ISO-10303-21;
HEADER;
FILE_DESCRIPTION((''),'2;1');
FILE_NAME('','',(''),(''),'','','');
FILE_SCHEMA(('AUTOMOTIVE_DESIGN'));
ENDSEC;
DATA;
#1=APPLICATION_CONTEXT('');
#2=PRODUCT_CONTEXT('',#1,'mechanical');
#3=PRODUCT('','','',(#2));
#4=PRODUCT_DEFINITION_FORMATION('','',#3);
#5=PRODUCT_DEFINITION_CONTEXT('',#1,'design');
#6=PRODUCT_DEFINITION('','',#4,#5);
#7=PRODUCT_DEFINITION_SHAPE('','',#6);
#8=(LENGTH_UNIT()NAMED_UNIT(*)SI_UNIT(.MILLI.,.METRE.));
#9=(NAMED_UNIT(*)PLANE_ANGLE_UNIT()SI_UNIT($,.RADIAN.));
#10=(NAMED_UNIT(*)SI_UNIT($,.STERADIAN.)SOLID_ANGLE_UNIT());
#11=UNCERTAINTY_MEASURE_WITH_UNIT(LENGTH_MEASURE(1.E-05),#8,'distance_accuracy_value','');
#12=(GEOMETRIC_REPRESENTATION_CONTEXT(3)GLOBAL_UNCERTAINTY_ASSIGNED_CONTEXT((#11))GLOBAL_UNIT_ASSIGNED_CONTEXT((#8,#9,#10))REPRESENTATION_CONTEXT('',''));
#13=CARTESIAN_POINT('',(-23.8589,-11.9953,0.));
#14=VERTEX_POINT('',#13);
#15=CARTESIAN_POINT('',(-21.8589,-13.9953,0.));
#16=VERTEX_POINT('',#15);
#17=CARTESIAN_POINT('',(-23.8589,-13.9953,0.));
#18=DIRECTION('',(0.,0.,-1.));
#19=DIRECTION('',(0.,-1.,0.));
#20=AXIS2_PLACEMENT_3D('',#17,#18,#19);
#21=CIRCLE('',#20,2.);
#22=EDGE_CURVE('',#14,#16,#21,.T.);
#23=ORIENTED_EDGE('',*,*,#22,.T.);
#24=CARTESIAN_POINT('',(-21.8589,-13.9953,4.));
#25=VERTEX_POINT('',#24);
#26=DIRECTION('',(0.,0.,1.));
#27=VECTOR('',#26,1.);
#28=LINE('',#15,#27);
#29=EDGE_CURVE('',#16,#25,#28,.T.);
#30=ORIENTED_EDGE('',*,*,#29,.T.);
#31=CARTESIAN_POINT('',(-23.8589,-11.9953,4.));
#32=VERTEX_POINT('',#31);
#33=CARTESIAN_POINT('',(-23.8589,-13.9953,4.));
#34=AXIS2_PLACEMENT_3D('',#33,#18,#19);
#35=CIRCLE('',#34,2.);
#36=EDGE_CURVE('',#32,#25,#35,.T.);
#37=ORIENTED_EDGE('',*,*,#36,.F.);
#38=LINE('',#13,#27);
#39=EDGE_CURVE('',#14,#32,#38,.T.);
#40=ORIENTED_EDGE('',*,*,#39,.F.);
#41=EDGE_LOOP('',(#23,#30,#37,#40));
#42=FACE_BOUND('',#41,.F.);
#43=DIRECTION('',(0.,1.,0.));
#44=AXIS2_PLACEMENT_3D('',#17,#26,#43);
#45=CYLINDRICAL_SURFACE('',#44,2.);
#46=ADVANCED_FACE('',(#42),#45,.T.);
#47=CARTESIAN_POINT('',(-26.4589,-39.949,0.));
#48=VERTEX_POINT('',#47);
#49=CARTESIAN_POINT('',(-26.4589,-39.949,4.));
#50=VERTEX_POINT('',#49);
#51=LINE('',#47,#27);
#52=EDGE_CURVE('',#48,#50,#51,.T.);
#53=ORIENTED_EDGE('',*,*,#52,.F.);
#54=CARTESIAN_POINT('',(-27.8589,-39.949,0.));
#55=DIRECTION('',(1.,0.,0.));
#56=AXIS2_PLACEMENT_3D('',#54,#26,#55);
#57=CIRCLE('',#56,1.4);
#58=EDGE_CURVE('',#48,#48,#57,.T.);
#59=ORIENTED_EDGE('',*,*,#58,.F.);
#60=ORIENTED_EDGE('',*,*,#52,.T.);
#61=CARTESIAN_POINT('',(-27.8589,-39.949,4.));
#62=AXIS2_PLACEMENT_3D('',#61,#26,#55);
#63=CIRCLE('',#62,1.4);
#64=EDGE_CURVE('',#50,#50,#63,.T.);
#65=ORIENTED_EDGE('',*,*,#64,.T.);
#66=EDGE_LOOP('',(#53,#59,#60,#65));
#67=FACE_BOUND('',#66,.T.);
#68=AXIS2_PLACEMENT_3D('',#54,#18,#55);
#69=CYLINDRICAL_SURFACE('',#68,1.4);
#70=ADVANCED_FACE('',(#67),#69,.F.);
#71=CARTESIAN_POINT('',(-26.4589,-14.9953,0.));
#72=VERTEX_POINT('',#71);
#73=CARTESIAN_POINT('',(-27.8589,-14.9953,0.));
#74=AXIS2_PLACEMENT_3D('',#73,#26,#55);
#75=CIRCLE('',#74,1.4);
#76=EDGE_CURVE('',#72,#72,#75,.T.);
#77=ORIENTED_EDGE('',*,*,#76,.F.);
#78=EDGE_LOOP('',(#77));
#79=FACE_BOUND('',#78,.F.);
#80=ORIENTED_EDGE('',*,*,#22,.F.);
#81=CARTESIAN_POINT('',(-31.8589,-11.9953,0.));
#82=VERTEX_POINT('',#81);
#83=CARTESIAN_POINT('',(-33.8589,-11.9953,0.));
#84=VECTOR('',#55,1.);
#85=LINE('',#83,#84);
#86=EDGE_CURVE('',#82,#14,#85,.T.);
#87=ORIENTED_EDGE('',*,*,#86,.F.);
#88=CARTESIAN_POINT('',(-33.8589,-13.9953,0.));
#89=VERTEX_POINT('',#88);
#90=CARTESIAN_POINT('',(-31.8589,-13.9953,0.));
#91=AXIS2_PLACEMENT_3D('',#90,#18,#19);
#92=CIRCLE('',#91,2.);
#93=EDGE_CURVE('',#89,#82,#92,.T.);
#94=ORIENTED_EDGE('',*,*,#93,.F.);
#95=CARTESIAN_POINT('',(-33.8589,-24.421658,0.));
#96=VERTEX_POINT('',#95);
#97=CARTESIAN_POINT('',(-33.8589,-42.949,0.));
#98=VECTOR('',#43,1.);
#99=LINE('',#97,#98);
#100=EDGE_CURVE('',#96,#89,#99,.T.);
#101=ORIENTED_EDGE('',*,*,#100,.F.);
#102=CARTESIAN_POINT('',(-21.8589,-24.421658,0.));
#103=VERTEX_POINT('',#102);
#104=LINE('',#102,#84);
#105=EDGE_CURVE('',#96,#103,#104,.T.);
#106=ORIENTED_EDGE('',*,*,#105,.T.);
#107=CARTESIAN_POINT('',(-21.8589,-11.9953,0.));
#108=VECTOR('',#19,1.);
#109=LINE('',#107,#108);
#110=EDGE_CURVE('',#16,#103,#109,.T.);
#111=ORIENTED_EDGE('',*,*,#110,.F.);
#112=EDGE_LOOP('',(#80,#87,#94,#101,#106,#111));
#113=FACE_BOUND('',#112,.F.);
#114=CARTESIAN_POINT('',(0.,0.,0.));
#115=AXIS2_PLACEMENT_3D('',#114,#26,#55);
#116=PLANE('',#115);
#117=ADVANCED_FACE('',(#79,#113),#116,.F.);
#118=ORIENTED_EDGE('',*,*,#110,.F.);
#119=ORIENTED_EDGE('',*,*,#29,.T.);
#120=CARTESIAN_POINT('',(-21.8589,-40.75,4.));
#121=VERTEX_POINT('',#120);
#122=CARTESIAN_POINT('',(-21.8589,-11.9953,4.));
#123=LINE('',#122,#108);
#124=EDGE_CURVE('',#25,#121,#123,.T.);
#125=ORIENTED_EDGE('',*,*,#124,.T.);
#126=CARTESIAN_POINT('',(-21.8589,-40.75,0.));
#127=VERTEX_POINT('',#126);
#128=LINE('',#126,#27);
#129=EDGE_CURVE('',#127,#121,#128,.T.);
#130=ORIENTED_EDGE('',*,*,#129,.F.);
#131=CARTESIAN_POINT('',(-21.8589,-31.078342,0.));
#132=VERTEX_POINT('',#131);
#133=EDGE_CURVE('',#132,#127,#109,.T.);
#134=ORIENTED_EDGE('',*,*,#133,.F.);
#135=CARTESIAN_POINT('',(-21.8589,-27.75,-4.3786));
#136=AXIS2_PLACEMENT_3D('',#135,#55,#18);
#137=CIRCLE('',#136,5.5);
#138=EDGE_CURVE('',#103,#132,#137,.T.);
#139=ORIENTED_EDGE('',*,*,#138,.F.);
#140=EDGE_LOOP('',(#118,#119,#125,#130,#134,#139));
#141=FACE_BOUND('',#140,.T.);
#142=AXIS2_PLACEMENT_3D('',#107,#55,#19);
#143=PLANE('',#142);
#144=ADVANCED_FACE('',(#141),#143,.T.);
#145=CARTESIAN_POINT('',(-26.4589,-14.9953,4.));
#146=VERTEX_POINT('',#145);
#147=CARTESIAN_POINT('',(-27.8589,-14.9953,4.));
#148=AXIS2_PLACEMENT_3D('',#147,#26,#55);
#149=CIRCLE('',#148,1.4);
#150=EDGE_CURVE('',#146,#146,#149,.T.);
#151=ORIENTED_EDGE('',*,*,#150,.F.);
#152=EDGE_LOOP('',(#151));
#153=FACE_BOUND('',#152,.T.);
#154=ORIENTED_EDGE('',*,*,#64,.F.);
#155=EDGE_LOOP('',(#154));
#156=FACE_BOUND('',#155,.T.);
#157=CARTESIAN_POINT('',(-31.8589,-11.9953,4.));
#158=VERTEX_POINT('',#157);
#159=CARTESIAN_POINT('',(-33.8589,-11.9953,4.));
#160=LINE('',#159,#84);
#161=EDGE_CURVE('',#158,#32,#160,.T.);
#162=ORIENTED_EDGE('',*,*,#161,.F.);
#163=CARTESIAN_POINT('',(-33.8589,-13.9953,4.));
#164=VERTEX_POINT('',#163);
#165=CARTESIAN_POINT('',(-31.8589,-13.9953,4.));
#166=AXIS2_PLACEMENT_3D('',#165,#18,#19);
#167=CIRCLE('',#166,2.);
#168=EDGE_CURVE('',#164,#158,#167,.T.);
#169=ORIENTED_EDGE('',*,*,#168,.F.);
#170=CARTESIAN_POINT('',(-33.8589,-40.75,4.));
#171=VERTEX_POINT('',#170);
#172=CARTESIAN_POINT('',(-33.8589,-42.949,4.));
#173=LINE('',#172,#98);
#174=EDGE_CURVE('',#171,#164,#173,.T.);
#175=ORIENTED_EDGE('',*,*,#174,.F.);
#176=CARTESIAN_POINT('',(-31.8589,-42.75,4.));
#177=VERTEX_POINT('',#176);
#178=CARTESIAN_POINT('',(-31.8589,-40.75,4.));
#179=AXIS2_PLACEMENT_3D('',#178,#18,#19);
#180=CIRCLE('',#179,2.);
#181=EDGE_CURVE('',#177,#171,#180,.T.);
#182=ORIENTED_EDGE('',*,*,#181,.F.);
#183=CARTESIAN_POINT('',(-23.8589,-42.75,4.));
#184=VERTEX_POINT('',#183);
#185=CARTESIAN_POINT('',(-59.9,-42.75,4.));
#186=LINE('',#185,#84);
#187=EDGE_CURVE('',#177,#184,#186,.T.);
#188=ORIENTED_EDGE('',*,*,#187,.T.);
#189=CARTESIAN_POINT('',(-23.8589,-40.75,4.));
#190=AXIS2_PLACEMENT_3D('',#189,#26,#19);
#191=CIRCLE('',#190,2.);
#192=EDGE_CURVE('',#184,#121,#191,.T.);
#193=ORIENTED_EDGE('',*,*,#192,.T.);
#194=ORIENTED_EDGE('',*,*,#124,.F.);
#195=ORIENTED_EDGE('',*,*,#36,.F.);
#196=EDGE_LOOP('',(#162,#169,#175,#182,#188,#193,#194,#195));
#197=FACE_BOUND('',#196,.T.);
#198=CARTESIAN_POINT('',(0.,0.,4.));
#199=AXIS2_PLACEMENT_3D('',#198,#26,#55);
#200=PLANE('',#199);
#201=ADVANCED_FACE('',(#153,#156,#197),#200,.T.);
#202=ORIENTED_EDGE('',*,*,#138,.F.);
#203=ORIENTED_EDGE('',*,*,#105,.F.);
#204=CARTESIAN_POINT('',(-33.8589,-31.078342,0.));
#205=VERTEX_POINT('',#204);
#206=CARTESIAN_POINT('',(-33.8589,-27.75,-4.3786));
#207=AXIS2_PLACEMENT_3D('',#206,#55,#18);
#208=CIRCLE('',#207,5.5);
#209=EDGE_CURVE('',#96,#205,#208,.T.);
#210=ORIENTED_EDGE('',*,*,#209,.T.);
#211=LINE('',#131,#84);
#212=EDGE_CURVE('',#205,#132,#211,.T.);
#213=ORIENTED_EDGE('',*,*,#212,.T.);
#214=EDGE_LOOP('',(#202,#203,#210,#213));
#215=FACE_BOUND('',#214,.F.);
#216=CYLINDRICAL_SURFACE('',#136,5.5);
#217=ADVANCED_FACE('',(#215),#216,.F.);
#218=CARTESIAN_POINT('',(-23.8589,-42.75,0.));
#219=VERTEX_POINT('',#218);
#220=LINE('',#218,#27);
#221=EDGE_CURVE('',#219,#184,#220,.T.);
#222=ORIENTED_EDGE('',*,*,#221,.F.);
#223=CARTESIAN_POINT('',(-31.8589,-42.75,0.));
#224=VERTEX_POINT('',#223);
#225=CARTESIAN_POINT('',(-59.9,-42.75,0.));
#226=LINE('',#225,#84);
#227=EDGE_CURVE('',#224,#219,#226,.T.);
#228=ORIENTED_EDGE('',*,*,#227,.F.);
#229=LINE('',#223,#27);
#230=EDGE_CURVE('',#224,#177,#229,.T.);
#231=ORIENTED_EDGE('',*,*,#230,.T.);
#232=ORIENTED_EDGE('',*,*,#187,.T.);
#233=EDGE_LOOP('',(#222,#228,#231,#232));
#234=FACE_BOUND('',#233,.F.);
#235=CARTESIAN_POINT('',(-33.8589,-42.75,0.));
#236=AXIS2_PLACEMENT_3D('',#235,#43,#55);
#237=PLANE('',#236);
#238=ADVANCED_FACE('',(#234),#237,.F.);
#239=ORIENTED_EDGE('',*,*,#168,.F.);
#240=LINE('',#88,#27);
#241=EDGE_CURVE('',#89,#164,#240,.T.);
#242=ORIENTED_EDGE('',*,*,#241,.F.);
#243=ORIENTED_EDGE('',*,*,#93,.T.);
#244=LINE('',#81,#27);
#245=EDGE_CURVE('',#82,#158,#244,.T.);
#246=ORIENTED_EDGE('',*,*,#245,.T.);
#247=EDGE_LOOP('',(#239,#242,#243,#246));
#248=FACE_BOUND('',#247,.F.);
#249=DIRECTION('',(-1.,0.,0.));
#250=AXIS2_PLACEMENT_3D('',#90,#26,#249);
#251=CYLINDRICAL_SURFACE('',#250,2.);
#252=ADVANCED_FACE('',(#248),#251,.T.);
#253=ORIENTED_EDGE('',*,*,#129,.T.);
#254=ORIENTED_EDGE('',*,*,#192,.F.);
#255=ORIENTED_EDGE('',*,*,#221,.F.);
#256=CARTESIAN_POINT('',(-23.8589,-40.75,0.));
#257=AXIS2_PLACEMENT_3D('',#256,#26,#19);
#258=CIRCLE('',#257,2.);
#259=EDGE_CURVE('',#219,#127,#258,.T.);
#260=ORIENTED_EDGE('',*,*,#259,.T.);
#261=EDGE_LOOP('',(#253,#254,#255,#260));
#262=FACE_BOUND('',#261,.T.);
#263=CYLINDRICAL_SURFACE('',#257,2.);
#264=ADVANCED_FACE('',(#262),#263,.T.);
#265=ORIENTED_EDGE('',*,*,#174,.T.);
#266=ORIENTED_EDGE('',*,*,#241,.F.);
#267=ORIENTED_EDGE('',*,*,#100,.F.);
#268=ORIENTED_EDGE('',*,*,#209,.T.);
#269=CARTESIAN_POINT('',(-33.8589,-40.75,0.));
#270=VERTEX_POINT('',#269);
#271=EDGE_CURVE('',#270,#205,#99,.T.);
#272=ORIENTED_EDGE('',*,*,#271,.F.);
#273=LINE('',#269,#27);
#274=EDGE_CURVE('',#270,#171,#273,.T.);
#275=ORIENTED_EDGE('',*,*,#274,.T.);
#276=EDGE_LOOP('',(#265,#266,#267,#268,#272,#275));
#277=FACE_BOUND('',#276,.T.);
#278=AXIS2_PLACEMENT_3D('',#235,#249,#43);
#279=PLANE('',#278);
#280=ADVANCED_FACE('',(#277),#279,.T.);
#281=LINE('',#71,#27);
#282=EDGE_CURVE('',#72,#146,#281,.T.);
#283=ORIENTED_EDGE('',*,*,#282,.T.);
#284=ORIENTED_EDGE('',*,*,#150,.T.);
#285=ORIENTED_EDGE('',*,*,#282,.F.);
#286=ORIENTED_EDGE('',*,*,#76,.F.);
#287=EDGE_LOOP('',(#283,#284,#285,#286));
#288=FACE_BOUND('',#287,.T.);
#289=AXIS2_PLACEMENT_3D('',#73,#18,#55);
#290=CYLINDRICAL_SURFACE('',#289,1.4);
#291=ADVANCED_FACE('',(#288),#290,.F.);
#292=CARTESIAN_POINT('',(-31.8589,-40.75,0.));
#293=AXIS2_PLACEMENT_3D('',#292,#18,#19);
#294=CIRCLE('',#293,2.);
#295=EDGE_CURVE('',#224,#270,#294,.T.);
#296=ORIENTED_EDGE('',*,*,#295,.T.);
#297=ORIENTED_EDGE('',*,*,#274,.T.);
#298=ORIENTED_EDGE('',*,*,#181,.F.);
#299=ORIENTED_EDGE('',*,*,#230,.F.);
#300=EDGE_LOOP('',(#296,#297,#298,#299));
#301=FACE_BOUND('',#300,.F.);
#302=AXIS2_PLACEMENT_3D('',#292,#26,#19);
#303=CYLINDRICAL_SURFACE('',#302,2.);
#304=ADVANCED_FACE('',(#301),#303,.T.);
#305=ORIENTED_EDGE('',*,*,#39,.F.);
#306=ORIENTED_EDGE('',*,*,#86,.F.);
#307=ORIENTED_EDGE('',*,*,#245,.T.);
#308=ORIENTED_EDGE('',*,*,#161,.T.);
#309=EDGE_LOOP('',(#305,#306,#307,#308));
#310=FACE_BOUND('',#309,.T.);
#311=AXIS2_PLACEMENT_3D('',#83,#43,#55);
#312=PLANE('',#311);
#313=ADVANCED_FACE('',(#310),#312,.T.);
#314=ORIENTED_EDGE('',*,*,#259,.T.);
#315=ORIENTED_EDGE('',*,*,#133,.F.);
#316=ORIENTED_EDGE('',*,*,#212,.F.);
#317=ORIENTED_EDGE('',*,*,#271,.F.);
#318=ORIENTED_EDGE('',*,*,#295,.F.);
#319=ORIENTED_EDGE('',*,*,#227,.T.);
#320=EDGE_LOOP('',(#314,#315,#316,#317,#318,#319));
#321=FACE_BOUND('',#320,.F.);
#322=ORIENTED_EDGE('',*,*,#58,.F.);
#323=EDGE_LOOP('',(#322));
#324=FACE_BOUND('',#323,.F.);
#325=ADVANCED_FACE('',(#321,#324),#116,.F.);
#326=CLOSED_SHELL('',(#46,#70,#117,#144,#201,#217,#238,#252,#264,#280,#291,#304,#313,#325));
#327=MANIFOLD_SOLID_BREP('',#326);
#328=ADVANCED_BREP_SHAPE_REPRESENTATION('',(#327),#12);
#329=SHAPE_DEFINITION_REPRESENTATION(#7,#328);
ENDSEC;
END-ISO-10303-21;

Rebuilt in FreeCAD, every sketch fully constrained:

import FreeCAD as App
import Part
import Sketcher
Q = App.Units.Quantity


def edges_at(feature, points):
    """Names of the edges that pass closest to the given points."""
    edges = feature.Shape.Edges
    near = lambda p: min(range(len(edges)), key=lambda i: edges[i].distToShape(Part.Vertex(*p))[0])
    return sorted({f"Edge{near(p) + 1}" for p in points})


def add_polygon(sketch, points):
    """Adds a closed chain of lines whose ends are joined by coincident constraints."""
    first, n = sketch.GeometryCount, len(points)
    for a, b in zip(points, points[1:] + points[:1]):
        sketch.addGeometry(Part.LineSegment(App.Vector(*a, 0), App.Vector(*b, 0)), False)
    for i in range(n):
        sketch.addConstraint(Sketcher.Constraint("Coincident", first + i, 2, first + (i + 1) % n, 1))

doc = App.newDocument("Part")
params = doc.addObject("Spreadsheet::Sheet", "Params")
for row, (alias, value) in enumerate([
    ("sketch1_width", "12 mm"),
    ("sketch1_diameter", "2.8 mm"),
    ("pad1_length", "4 mm"),
    ("fillet_radius", "2 mm"),
    ("sketch2_diameter", "11 mm"),
    ("pocket1_length", "13 mm"),
], start=1):
    params.set(f"A{row}", alias)
    params.set(f"B{row}", "=" + value)
    params.setAlias(f"B{row}", alias)

body = doc.addObject("PartDesign::Body", "Body")

# Sketch on XY plane
sketch1 = body.newObject("Sketcher::SketchObject", "Sketch")
sketch1.AttachmentSupport = (doc.getObject("XY_Plane"), [""])
sketch1.MapMode = "FlatFace"
add_polygon(sketch1, [(-33.9, -42.8), (-21.9, -42.8), (-21.9, -12), (-33.9, -12)])  # lines 0-3
sketch1.addGeometry(Part.Circle(App.Vector(-27.9, -39.9, 0), App.Vector(0, 0, 1), 1.4), False)  # 4
sketch1.addGeometry(Part.Circle(App.Vector(-27.9, -15, 0), App.Vector(0, 0, 1), 1.4), False)  # 5
sketch1.addConstraint([
    Sketcher.Constraint("Horizontal", 0),
    Sketcher.Constraint("Vertical", 1),
    Sketcher.Constraint("Horizontal", 2),
    Sketcher.Constraint("Vertical", 3),
    Sketcher.Constraint("Equal", 4, 5),
    Sketcher.Constraint("Vertical", 4, 3, 5, 3),
    Sketcher.Constraint("DistanceX", 0, 1, 0, 2, Q("12 mm")),
    Sketcher.Constraint("DistanceY", 5, 3, 1, 2, Q("3 mm")),
    Sketcher.Constraint("Diameter", 4, Q("2.8 mm")),
    Sketcher.Constraint("DistanceX", 4, 3, 0, 2, Q("6 mm")),
    Sketcher.Constraint("DistanceY", 4, 3, 5, 3, Q("24.9537 mm")),
    Sketcher.Constraint("DistanceY", 0, 2, -1, 1, Q("42.75 mm")),
    Sketcher.Constraint("DistanceY", 1, 1, 1, 2, Q("30.7547 mm")),
    Sketcher.Constraint("DistanceX", 4, 3, -1, 1, Q("27.859 mm")),
])
sketch1.setExpression("Constraints[10]", "Params.sketch1_width")
sketch1.setExpression("Constraints[12]", "Params.sketch1_diameter")
pad1 = body.newObject("PartDesign::Pad", "Pad")
pad1.Profile = sketch1
pad1.setExpression("Length", "Params.pad1_length")
doc.recompute()

fillet = body.newObject("PartDesign::Fillet", "Fillet")
fillet.Base = (pad1, edges_at(pad1, [
    (-21.859, -11.995, 2),
    (-33.859, -11.995, 2),
    (-21.859, -42.75, 2),
    (-33.859, -42.75, 2),
]))
fillet.setExpression("Radius", "Params.fillet_radius")

# Sketch on YZ plane
sketch2 = body.newObject("Sketcher::SketchObject", "Sketch001")
sketch2.AttachmentSupport = (doc.getObject("YZ_Plane"), [""])
sketch2.MapMode = "FlatFace"
sketch2.AttachmentOffset = App.Placement(App.Vector(0, 0, -21.8589), App.Rotation())
sketch2.addGeometry(Part.Circle(App.Vector(-28, -4, 0), App.Vector(0, 0, 1), 6), False)
sketch2.addConstraint([
    Sketcher.Constraint("Diameter", 0, Q("11 mm")),
    Sketcher.Constraint("DistanceX", 0, 3, -1, 1, Q("27.75 mm")),
    Sketcher.Constraint("DistanceY", 0, 3, -1, 1, Q("4.3786 mm")),
])
sketch2.setExpression("Constraints[0]", "Params.sketch2_diameter")
pocket1 = body.newObject("PartDesign::Pocket", "Pocket")
pocket1.Profile = sketch2
pocket1.setExpression("Length", "Params.pocket1_length")

doc.recompute()
